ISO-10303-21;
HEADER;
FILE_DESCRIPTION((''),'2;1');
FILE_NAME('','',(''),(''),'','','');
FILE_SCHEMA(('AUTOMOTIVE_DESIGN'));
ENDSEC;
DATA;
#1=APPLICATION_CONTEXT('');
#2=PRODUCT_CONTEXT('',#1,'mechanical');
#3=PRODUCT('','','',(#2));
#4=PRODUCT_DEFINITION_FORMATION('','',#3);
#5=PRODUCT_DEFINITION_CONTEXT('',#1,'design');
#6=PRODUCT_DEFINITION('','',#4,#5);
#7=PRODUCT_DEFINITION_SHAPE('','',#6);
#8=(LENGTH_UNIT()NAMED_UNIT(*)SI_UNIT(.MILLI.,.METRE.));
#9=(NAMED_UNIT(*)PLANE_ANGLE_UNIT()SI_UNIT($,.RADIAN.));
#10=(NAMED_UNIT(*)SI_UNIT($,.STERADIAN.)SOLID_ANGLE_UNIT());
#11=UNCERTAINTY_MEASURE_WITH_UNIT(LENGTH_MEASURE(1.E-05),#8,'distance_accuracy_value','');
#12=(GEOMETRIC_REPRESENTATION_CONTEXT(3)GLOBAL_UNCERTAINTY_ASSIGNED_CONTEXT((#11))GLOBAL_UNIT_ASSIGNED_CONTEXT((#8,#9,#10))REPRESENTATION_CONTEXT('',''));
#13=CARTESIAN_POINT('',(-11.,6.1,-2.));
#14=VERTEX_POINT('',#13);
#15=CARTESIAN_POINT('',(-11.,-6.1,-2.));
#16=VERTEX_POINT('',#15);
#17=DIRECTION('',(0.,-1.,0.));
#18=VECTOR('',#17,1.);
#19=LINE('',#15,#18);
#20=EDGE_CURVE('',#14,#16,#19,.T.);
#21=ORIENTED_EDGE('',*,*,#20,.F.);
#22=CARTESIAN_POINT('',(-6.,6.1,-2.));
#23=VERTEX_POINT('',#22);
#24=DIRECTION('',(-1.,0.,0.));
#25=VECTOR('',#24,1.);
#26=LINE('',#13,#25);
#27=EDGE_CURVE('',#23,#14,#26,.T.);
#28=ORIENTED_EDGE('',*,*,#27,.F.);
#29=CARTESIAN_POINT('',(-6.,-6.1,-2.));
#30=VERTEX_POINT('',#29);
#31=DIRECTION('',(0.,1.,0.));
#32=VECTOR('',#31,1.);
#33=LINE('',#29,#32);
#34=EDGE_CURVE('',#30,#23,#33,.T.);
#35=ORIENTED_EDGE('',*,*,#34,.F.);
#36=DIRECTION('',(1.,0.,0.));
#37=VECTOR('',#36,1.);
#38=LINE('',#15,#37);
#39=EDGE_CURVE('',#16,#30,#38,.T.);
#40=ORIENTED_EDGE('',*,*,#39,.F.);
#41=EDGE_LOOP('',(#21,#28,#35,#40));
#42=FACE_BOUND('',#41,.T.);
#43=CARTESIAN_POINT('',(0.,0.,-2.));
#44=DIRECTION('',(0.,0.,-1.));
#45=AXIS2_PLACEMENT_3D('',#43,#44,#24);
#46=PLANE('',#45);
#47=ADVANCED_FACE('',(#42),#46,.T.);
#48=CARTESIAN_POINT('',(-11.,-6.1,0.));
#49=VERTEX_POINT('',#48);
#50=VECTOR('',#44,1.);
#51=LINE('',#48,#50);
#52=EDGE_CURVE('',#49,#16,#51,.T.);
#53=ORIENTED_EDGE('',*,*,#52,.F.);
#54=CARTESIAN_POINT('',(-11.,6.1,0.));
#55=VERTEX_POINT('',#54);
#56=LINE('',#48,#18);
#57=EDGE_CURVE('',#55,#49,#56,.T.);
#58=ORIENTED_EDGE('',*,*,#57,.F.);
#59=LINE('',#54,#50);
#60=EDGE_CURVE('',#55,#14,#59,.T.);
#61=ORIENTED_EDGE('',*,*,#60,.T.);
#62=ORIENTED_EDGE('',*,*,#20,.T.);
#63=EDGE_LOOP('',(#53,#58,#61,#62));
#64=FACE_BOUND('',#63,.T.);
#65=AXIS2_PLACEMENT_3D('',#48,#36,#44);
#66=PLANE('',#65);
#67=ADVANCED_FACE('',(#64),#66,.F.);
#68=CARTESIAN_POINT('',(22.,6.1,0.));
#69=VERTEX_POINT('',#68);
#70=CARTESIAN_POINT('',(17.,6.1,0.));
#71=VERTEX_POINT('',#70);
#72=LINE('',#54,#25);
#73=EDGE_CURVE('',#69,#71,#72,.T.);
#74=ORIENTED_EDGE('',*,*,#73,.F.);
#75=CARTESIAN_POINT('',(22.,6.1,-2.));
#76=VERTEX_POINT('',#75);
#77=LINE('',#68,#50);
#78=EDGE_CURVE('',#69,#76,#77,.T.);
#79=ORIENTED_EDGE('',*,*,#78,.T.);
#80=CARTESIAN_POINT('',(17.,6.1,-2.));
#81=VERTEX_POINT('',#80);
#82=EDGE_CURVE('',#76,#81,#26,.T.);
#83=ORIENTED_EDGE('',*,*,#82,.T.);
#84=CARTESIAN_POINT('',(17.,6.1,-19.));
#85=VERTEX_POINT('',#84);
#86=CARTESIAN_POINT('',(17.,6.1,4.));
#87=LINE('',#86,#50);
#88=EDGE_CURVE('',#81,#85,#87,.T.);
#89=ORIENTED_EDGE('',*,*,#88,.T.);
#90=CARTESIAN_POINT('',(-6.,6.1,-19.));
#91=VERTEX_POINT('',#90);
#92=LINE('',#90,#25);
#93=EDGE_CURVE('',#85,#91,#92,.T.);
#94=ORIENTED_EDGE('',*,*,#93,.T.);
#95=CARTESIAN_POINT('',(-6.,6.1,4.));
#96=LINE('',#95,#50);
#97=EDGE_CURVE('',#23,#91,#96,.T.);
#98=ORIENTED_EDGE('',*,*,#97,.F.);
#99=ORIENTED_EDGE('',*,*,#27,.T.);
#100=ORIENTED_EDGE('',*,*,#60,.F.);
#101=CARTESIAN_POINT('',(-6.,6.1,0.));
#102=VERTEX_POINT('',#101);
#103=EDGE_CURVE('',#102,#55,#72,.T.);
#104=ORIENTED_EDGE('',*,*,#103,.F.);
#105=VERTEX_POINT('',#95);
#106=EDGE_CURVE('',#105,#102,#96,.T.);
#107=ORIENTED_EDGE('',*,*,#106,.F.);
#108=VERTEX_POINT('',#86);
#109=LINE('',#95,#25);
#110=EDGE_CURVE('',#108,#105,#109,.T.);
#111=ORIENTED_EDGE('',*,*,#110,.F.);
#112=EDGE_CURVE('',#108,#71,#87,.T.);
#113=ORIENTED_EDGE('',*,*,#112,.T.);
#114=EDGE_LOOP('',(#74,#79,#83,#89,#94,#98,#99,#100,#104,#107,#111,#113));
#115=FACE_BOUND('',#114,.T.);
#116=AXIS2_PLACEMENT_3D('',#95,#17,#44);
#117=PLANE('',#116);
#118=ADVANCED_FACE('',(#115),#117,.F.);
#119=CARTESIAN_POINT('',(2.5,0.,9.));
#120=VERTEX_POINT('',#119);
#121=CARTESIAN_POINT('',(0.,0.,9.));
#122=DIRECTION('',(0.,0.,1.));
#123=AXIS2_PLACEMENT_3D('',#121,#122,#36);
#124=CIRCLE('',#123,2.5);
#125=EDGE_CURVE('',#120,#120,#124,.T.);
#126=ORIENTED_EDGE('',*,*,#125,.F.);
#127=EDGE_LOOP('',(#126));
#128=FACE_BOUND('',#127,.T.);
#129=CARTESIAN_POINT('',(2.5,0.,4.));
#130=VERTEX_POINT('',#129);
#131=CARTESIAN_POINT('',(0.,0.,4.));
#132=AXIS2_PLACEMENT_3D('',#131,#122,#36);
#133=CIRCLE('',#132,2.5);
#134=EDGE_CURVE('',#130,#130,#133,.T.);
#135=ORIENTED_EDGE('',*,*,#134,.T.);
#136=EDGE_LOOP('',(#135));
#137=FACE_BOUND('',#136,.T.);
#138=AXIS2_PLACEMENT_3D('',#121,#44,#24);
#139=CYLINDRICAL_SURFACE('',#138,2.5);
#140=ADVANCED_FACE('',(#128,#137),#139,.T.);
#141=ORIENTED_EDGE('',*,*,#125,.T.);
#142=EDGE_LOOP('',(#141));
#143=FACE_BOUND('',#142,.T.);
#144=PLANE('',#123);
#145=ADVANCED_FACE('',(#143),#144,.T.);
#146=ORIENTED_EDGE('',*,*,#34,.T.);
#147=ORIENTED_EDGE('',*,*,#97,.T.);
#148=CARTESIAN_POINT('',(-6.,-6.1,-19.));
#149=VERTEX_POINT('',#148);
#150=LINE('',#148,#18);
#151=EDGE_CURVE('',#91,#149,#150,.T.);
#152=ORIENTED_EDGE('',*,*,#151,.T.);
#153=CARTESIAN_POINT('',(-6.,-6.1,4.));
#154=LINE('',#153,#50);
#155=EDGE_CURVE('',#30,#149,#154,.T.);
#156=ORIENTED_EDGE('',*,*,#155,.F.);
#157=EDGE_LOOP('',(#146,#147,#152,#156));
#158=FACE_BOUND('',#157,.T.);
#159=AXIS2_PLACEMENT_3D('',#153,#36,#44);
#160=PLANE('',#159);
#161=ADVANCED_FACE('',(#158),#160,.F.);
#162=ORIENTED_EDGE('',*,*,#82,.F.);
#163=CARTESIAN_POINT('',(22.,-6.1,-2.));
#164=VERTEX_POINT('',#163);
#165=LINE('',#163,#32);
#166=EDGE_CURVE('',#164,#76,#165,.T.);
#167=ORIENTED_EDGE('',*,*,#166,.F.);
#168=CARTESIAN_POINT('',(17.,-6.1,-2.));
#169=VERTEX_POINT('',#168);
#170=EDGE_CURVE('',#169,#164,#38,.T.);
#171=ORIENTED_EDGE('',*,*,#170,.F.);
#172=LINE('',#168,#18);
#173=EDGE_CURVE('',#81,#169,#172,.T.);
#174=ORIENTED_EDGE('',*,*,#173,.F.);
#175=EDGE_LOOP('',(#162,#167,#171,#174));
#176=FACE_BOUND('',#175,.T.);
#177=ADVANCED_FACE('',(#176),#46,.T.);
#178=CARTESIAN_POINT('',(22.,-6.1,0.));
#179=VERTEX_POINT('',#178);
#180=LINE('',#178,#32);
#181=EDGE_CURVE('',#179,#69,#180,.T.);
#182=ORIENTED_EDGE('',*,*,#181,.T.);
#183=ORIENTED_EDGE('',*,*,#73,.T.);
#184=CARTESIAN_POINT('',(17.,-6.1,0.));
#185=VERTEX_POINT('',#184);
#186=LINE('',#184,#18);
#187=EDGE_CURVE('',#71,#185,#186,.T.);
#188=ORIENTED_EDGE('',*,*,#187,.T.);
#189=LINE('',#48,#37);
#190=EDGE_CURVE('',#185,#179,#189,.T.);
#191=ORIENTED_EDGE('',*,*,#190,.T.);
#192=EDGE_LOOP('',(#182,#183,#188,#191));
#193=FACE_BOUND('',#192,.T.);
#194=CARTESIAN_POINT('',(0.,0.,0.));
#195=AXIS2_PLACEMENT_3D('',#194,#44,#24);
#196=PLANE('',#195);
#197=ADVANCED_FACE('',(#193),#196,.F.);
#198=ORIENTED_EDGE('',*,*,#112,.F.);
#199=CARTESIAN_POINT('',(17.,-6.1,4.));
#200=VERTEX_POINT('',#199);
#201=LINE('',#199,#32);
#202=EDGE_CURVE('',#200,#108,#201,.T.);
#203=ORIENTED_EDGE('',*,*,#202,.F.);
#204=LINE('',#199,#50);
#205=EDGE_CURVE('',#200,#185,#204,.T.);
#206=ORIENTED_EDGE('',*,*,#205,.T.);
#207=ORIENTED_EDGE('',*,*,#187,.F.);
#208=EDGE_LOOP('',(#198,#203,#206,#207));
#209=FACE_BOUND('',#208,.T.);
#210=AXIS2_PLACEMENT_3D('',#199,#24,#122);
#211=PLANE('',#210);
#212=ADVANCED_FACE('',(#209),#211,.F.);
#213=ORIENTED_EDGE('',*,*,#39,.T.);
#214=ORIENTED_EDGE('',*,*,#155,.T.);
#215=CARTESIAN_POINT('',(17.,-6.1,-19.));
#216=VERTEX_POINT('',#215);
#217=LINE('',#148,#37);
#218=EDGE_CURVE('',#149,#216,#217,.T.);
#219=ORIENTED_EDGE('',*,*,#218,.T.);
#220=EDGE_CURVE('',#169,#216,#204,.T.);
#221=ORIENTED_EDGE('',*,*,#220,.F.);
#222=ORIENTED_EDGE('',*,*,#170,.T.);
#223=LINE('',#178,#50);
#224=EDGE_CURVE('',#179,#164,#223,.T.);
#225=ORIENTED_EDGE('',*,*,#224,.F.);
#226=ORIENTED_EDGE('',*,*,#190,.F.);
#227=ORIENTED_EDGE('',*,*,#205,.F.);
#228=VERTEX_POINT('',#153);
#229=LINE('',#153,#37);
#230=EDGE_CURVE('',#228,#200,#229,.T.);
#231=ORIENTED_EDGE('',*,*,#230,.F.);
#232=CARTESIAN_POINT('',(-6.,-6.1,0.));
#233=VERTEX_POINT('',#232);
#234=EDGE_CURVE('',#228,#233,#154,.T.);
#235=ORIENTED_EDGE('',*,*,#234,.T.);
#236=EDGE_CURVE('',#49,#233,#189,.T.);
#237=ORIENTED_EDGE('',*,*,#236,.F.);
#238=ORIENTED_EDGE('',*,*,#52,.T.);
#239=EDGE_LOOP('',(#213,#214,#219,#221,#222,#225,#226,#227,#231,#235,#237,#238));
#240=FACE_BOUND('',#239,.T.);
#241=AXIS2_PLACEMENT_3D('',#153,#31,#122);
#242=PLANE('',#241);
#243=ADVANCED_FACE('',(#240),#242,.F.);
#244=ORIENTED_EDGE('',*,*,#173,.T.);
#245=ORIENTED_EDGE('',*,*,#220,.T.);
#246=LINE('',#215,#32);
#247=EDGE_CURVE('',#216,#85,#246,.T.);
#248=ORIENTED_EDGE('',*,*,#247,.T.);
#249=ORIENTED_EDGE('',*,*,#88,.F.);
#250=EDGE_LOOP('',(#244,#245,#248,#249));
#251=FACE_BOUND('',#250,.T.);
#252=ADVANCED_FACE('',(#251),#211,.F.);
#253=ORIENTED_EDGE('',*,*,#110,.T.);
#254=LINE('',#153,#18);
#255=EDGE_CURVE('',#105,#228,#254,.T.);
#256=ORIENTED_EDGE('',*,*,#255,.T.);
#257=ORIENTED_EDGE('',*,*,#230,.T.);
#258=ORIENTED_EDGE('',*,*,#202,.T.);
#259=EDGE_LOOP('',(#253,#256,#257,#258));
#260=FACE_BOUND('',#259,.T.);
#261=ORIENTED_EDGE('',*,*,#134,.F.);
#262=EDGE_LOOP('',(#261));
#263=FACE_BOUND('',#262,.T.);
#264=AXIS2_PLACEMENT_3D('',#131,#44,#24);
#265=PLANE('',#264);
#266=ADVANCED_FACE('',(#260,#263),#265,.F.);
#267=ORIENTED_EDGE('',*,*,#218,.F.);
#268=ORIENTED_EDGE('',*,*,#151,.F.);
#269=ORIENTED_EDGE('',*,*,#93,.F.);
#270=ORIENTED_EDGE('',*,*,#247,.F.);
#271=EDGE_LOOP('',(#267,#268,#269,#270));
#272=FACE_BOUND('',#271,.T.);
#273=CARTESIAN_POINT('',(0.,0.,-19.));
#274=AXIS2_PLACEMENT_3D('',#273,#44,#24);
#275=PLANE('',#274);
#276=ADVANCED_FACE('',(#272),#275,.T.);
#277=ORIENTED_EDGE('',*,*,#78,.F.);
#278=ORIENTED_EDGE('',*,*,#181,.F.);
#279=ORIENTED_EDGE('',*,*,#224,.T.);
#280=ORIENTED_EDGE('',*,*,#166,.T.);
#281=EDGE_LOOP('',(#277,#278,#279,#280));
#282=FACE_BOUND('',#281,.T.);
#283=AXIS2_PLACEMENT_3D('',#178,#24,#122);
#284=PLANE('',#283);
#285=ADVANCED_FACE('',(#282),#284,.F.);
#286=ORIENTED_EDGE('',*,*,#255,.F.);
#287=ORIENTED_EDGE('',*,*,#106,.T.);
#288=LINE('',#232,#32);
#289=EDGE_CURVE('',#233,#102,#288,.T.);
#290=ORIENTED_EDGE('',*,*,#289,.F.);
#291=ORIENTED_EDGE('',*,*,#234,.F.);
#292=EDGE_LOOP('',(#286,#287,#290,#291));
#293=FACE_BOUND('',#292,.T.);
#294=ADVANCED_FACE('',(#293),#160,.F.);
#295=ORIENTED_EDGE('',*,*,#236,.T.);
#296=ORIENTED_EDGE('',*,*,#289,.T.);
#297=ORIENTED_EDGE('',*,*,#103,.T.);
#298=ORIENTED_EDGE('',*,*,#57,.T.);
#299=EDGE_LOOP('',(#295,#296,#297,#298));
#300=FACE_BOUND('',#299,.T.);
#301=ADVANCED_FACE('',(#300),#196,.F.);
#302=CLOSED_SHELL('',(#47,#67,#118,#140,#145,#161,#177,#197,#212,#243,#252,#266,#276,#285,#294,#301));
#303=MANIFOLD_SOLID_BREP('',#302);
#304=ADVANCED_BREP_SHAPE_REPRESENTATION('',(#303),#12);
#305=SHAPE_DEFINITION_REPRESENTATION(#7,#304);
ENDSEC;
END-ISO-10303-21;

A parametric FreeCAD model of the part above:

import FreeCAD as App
import Part
import Sketcher

V = App.Vector
Q = App.Units.Quantity

doc = App.newDocument("Part")
body = doc.addObject("PartDesign::Body", "Body")

sketch1 = body.newObject("Sketcher::SketchObject", "Sketch")
sketch1.AttachmentSupport = (doc.getObject("XY_Plane"), [""])
sketch1.MapMode = "FlatFace"
sketch1.AttachmentOffset = App.Placement(V(0, 0, -19), App.Rotation())
sketch1.addGeometry(Part.LineSegment(V(-6, 6, 0), V(-6, -6, 0)), False)
sketch1.addGeometry(Part.LineSegment(V(-6, -6, 0), V(17, -6, 0)), False)
sketch1.addGeometry(Part.LineSegment(V(17, -6, 0), V(17, 6, 0)), False)
sketch1.addGeometry(Part.LineSegment(V(17, 6, 0), V(-6, 6, 0)), False)
sketch1.addConstraint(Sketcher.Constraint("Coincident", 0, 2, 1, 1))
sketch1.addConstraint(Sketcher.Constraint("Coincident", 1, 2, 2, 1))
sketch1.addConstraint(Sketcher.Constraint("Coincident", 2, 2, 3, 1))
sketch1.addConstraint(Sketcher.Constraint("Coincident", 3, 2, 0, 1))
sketch1.addConstraint(Sketcher.Constraint("Vertical", 0))
sketch1.addConstraint(Sketcher.Constraint("Horizontal", 1))
sketch1.addConstraint(Sketcher.Constraint("Vertical", 2))
sketch1.addConstraint(Sketcher.Constraint("Horizontal", 3))
sketch1.addConstraint(Sketcher.Constraint("DistanceX", 1, 1, 1, 2, Q("23 mm")))
sketch1.addConstraint(Sketcher.Constraint("DistanceY", 0, 2, 0, 1, Q("12.2 mm")))
sketch1.addConstraint(Sketcher.Constraint("DistanceX", 0, 2, -1, 1, Q("6 mm")))
sketch1.addConstraint(Sketcher.Constraint("DistanceY", 0, 2, -1, 1, Q("6.1 mm")))
pad1 = body.newObject("PartDesign::Pad", "Pad")
pad1.Profile = sketch1
pad1.Length = 23

sketch2 = body.newObject("Sketcher::SketchObject", "Sketch001")
sketch2.AttachmentSupport = (doc.getObject("XY_Plane"), [""])
sketch2.MapMode = "FlatFace"
sketch2.AttachmentOffset = App.Placement(V(0, 0, -2), App.Rotation())
sketch2.addGeometry(Part.LineSegment(V(-11, 6, 0), V(-11, -6, 0)), False)
sketch2.addGeometry(Part.LineSegment(V(-11, -6, 0), V(22, -6, 0)), False)
sketch2.addGeometry(Part.LineSegment(V(22, -6, 0), V(22, 6, 0)), False)
sketch2.addGeometry(Part.LineSegment(V(22, 6, 0), V(-11, 6, 0)), False)
sketch2.addConstraint(Sketcher.Constraint("Coincident", 0, 2, 1, 1))
sketch2.addConstraint(Sketcher.Constraint("Coincident", 1, 2, 2, 1))
sketch2.addConstraint(Sketcher.Constraint("Coincident", 2, 2, 3, 1))
sketch2.addConstraint(Sketcher.Constraint("Coincident", 3, 2, 0, 1))
sketch2.addConstraint(Sketcher.Constraint("Vertical", 0))
sketch2.addConstraint(Sketcher.Constraint("Horizontal", 1))
sketch2.addConstraint(Sketcher.Constraint("Vertical", 2))
sketch2.addConstraint(Sketcher.Constraint("Horizontal", 3))
sketch2.addConstraint(Sketcher.Constraint("DistanceX", 1, 1, 1, 2, Q("33 mm")))
sketch2.addConstraint(Sketcher.Constraint("DistanceY", 0, 2, 0, 1, Q("12.2 mm")))
sketch2.addConstraint(Sketcher.Constraint("DistanceX", 0, 2, -1, 1, Q("11 mm")))
sketch2.addConstraint(Sketcher.Constraint("DistanceY", 0, 2, -1, 1, Q("6.1 mm")))
pad2 = body.newObject("PartDesign::Pad", "Pad001")
pad2.Profile = sketch2
pad2.Length = 2

sketch3 = body.newObject("Sketcher::SketchObject", "Sketch002")
sketch3.AttachmentSupport = (doc.getObject("XY_Plane"), [""])
sketch3.MapMode = "FlatFace"
sketch3.AttachmentOffset = App.Placement(V(0, 0, 4), App.Rotation())
sketch3.addGeometry(Part.Circle(V(0, 0, 0), V(0, 0, 1), 2.5), False)
sketch3.addConstraint(Sketcher.Constraint("Coincident", 0, 3, -1, 1))
sketch3.addConstraint(Sketcher.Constraint("Diameter", 0, Q("5 mm")))
pad3 = body.newObject("PartDesign::Pad", "Pad002")
pad3.Profile = sketch3
pad3.Length = 5

doc.recompute()
